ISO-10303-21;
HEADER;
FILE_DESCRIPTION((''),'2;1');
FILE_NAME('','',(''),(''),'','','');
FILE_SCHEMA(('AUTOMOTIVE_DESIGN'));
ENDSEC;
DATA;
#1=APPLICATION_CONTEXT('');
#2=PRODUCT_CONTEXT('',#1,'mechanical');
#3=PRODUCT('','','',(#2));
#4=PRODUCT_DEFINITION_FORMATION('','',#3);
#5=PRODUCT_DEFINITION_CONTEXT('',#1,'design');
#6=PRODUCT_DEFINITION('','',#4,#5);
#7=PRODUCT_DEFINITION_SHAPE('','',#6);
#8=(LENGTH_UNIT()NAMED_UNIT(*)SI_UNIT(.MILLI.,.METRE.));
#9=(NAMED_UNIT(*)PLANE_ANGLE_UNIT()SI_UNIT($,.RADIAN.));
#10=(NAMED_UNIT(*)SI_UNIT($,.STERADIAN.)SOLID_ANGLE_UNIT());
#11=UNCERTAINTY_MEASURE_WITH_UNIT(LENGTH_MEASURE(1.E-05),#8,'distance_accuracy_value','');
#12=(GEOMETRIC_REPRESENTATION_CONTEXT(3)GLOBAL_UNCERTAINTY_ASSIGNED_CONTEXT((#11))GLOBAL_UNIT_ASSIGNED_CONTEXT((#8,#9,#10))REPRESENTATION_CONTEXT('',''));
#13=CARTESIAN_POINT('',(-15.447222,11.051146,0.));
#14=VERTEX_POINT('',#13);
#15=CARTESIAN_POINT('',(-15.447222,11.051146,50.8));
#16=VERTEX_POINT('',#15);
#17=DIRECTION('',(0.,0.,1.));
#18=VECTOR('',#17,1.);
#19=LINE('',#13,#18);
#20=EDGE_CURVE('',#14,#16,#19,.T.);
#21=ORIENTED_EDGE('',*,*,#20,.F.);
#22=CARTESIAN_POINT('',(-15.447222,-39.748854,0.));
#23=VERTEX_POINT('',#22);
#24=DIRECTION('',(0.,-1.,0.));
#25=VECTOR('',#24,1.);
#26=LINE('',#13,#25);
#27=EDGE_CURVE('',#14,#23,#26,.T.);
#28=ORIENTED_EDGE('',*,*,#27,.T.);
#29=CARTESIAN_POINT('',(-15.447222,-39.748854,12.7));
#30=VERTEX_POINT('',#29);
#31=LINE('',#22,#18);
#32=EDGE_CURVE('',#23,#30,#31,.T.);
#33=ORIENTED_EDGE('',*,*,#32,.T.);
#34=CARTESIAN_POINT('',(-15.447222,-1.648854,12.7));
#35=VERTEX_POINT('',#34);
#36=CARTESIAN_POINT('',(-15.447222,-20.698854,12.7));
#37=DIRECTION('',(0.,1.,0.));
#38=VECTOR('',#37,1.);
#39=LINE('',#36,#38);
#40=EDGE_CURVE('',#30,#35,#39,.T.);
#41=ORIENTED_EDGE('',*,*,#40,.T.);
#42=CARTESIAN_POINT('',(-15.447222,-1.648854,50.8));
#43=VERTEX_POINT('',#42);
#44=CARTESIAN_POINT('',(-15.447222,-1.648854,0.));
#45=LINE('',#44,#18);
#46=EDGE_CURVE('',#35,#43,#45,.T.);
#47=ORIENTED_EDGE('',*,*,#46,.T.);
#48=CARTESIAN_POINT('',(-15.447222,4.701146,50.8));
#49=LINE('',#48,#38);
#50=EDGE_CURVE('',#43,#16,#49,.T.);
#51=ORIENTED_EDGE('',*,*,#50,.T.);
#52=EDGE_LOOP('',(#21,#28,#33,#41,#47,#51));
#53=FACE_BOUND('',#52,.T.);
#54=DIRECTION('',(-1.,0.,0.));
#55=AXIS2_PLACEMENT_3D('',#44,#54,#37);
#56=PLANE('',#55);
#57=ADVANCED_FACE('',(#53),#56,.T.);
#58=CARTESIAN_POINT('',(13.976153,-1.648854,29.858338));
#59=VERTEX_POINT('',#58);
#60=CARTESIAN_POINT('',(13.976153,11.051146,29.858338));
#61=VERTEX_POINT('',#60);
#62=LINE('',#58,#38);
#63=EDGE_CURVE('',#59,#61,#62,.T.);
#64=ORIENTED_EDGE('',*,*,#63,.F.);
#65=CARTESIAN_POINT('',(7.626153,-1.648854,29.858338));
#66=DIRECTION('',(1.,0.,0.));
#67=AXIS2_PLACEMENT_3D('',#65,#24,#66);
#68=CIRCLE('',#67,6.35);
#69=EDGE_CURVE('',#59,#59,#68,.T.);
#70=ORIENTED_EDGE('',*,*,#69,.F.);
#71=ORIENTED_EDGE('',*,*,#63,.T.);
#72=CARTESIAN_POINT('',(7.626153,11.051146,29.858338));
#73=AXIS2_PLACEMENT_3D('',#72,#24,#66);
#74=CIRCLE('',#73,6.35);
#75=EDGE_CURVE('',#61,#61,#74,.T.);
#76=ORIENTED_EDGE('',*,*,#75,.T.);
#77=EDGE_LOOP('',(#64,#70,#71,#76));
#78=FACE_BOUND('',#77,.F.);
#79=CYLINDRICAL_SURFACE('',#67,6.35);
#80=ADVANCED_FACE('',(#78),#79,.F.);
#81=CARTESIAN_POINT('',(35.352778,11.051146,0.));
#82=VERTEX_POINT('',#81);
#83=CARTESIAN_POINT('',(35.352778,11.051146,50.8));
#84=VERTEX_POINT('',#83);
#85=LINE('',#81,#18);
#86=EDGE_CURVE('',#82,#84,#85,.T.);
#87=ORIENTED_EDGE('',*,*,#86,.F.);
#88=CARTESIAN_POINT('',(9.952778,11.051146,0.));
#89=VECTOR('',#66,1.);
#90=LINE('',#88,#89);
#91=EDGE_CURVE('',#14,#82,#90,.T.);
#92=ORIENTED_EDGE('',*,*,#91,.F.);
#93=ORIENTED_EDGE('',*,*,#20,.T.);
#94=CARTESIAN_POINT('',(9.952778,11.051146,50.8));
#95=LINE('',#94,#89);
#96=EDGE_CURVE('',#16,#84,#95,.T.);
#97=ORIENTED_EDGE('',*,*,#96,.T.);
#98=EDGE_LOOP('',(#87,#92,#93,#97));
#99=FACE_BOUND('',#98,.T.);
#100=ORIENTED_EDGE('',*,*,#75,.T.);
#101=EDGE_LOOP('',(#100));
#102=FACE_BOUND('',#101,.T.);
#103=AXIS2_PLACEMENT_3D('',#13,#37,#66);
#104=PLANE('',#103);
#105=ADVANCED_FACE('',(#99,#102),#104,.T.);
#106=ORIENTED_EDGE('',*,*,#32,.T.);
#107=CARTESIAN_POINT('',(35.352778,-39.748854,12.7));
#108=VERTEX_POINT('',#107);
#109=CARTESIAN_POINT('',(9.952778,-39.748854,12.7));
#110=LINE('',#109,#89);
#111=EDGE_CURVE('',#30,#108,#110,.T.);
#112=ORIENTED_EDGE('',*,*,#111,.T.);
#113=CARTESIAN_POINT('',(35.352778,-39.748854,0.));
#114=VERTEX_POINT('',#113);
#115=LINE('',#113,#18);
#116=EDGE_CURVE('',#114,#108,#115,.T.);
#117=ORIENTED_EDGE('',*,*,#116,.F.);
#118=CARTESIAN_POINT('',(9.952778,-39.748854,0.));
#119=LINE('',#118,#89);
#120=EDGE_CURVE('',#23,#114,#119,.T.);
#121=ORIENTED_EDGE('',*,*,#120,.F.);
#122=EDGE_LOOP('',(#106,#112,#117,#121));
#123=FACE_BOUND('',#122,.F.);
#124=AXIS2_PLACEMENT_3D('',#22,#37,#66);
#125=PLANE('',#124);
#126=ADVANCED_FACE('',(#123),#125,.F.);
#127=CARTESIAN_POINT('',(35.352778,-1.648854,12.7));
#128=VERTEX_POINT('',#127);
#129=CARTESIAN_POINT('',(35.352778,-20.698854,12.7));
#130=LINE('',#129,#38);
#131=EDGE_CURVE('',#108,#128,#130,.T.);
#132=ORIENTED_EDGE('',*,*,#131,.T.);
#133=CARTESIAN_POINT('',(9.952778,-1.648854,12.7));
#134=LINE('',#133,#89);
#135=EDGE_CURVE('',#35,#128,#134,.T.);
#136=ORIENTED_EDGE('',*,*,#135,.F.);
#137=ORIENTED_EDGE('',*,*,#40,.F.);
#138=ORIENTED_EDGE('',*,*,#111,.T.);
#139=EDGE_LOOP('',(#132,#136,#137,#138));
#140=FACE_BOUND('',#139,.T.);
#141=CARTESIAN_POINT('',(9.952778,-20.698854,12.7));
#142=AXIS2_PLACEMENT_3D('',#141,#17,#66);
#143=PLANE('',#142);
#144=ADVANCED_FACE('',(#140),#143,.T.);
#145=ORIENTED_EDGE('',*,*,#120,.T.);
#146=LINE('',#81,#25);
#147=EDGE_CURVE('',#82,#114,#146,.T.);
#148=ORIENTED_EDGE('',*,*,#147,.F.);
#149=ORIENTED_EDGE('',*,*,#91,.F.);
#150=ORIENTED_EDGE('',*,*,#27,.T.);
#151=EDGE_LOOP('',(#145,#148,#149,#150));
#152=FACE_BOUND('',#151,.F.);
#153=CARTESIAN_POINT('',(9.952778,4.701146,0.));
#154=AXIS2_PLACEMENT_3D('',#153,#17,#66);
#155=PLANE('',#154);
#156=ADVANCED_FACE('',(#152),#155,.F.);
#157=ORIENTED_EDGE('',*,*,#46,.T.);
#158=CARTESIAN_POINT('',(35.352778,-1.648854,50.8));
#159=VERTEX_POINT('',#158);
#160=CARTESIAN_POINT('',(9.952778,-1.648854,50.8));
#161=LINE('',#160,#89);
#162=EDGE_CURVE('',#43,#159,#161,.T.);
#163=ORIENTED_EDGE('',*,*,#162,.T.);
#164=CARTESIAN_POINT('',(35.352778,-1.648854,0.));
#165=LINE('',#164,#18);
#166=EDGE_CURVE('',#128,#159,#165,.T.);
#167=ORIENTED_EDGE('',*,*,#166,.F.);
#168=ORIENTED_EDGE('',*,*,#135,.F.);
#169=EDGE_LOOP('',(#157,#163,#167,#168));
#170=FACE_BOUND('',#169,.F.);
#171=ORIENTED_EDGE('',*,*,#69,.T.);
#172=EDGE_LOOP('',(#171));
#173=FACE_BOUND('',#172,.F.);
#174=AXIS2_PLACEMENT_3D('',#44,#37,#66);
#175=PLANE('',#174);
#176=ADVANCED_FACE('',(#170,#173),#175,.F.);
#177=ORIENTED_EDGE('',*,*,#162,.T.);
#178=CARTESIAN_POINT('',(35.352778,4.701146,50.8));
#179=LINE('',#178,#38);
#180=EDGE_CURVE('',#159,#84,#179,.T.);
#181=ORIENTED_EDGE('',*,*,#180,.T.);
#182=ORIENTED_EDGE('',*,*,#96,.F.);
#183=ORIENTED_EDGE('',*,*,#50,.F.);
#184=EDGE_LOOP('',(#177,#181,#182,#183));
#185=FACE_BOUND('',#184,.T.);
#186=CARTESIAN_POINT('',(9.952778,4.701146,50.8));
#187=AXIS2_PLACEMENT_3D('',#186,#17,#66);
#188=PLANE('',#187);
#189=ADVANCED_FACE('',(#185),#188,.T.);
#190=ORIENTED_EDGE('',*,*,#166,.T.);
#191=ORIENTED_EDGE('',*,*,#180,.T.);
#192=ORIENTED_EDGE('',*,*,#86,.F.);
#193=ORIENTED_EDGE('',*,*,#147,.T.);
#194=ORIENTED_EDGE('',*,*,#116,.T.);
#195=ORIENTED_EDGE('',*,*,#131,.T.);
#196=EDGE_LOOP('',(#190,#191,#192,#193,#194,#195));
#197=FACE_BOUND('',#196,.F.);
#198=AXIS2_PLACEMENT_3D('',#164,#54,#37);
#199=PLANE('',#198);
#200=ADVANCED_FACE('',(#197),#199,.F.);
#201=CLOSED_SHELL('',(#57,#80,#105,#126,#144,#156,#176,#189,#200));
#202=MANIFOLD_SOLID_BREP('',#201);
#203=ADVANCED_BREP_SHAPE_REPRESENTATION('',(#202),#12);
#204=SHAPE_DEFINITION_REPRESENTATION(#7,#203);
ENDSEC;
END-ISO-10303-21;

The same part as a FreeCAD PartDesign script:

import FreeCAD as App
import Part
import Sketcher
Q = App.Units.Quantity


def add_polygon(sketch, points):
    """Adds a closed chain of lines whose ends are joined by coincident constraints."""
    first, n = sketch.GeometryCount, len(points)
    for a, b in zip(points, points[1:] + points[:1]):
        sketch.addGeometry(Part.LineSegment(App.Vector(*a, 0), App.Vector(*b, 0)), False)
    for i in range(n):
        sketch.addConstraint(Sketcher.Constraint("Coincident", first + i, 2, first + (i + 1) % n, 1))

doc = App.newDocument("Part")
body = doc.addObject("PartDesign::Body", "Body")

# Sketch on XY plane
sketch1 = doc.addObject("Sketcher::SketchObject", "Sketch")
body.addObject(sketch1)
sketch1.AttachmentSupport = (doc.XY_Plane, [""])
sketch1.MapMode = "FlatFace"
add_polygon(sketch1, [(-15, -2), (-15, -40), (35, -40), (35, -2)])  # lines 0-3
sketch1.addConstraint([
    Sketcher.Constraint("Vertical", 0),
    Sketcher.Constraint("Horizontal", 1),
    Sketcher.Constraint("Vertical", 2),
    Sketcher.Constraint("Horizontal", 3),
    Sketcher.Constraint("DistanceX", 1, 1, 1, 2, Q("2 in")),
    Sketcher.Constraint("DistanceY", 0, 2, 0, 1, Q("1.5 in")),
    Sketcher.Constraint("DistanceX", 0, 2, -1, 1, Q("15.447222 mm")),
    Sketcher.Constraint("DistanceY", 0, 2, -1, 1, Q("39.748854 mm")),
])
pad1 = doc.addObject("PartDesign::Pad", "Pad")
body.addObject(pad1)
pad1.Profile = sketch1
pad1.Length = Q("0.5 in")

# Sketch on XY plane
sketch2 = doc.addObject("Sketcher::SketchObject", "Sketch001")
body.addObject(sketch2)
sketch2.AttachmentSupport = (doc.XY_Plane, [""])
sketch2.MapMode = "FlatFace"
add_polygon(sketch2, [(-15, 11), (-15, -2), (35, -2), (35, 11)])  # lines 0-3
sketch2.addConstraint([
    Sketcher.Constraint("Vertical", 0),
    Sketcher.Constraint("Horizontal", 1),
    Sketcher.Constraint("Vertical", 2),
    Sketcher.Constraint("Horizontal", 3),
    Sketcher.Constraint("DistanceX", 1, 1, 1, 2, Q("2 in")),
    Sketcher.Constraint("DistanceY", 0, 2, 0, 1, Q("0.5 in")),
    Sketcher.Constraint("DistanceX", 0, 2, -1, 1, Q("15.447222 mm")),
    Sketcher.Constraint("DistanceY", 0, 2, -1, 1, Q("1.648854 mm")),
])
pad2 = doc.addObject("PartDesign::Pad", "Pad001")
body.addObject(pad2)
pad2.Profile = sketch2
pad2.Length = Q("2 in")

# Sketch on XZ plane
sketch3 = doc.addObject("Sketcher::SketchObject", "Sketch002")
body.addObject(sketch3)
sketch3.AttachmentSupport = (doc.XZ_Plane, [""])
sketch3.MapMode = "FlatFace"
sketch3.AttachmentOffset = App.Placement(App.Vector(0, 0, 1.648854), App.Rotation())
sketch3.addGeometry(Part.Circle(App.Vector(8, 30, 0), App.Vector(0, 0, 1), 6), False)
sketch3.addConstraint([
    Sketcher.Constraint("Diameter", 0, Q("0.5 in")),
    Sketcher.Constraint("DistanceY", -1, 1, 0, 3, Q("29.858338 mm")),
    Sketcher.Constraint("DistanceX", -1, 1, 0, 3, Q("7.626153 mm")),
])
pocket1 = doc.addObject("PartDesign::Pocket", "Pocket")
body.addObject(pocket1)
pocket1.Profile = sketch3
pocket1.Length = Q("1 in")

doc.recompute()
